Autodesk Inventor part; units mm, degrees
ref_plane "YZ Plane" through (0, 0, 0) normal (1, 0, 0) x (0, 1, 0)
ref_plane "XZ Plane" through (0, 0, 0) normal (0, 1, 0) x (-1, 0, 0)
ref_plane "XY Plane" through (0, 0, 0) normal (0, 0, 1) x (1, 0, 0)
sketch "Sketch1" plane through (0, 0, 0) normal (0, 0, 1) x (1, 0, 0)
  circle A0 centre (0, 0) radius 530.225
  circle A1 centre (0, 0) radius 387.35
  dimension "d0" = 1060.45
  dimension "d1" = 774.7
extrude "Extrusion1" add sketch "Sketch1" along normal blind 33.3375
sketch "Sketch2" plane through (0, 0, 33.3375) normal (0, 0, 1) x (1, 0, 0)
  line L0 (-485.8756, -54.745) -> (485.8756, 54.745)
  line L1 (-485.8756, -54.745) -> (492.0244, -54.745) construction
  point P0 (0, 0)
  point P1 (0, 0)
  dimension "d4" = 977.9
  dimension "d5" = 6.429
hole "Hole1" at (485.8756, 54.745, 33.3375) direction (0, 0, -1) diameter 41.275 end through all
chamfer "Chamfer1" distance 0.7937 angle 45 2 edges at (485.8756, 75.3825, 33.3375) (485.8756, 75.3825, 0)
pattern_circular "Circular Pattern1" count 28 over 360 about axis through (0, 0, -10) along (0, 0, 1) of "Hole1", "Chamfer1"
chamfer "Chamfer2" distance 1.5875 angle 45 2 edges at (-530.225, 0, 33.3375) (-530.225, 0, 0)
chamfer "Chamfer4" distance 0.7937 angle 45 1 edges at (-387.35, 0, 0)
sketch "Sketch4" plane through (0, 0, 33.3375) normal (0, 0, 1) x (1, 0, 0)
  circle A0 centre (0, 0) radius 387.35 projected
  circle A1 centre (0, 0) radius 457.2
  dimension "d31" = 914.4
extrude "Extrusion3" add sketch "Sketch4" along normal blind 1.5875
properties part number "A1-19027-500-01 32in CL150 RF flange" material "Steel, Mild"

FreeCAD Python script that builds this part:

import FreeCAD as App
import Part
import Sketcher

V = App.Vector
Q = App.Units.Quantity


def edges_at(feature, points):
    """Names of the edges that pass closest to the given points."""
    edges = feature.Shape.Edges
    near = lambda p: min(range(len(edges)), key=lambda i: edges[i].distToShape(Part.Vertex(*p))[0])
    return sorted({f"Edge{near(p) + 1}" for p in points})

doc = App.newDocument("Part")
body = doc.addObject("PartDesign::Body", "Body")

# Sketch on XY plane
sketch1 = body.newObject("Sketcher::SketchObject", "Sketch")
sketch1.AttachmentSupport = (doc.getObject("XY_Plane"), [""])
sketch1.MapMode = "FlatFace"
sketch1.addGeometry([
    Part.Circle(V(0, 0, 0), V(0, 0, 1), 530),
    Part.Circle(V(0, 0, 0), V(0, 0, 1), 387),
], False)
sketch1.addConstraint([
    Sketcher.Constraint("Coincident", 0, 3, -1, 1),
    Sketcher.Constraint("Coincident", 1, 3, -1, 1),
    Sketcher.Constraint("Diameter", 1, Q("30.5 in")),
    Sketcher.Constraint("Diameter", 0, Q("41.75 in")),
])
pad1 = body.newObject("PartDesign::Pad", "Pad")
pad1.Profile = sketch1
pad1.Length = Q("1.3125 in")

# Sketch on XY plane
sketch2 = body.newObject("Sketcher::SketchObject", "Sketch001")
sketch2.AttachmentSupport = (doc.getObject("XY_Plane"), [""])
sketch2.MapMode = "FlatFace"
sketch2.AttachmentOffset = App.Placement(V(0, 0, 1.3125 * 25.4), App.Rotation())
sketch2.addGeometry(Part.Circle(V(486, 55, 0), V(0, 0, 1), 21), False)
sketch2.addConstraint([
    Sketcher.Constraint("Diameter", 0, Q("1.625 in")),
    Sketcher.Constraint("DistanceX", -1, 1, 0, 3, 485.8756),
    Sketcher.Constraint("DistanceY", -1, 1, 0, 3, 54.745),
])
doc.recompute()
hole = body.newObject("PartDesign::Hole", "Hole")
hole.Profile = sketch2
hole.ThreadType = "None"
hole.Diameter = Q("1.625 in")
hole.DepthType = "ThroughAll"
doc.recompute()

chamfer = body.newObject("PartDesign::Chamfer", "Chamfer")
chamfer.Base = (hole, edges_at(hole, [(485.876, 75.382, 33.337), (485.876, 75.382, 0)]))
chamfer.Size = Q("0.031248 in")
doc.recompute()

polarpattern = body.newObject("PartDesign::PolarPattern", "PolarPattern")
polarpattern.Originals = [hole, chamfer]
polarpattern.Axis = (doc.getObject("Z_Axis"), [""])
polarpattern.Angle = 360
polarpattern.Occurrences = 28
body.Tip = polarpattern
doc.recompute()

chamfer2 = body.newObject("PartDesign::Chamfer", "Chamfer001")
chamfer2.Base = (polarpattern, edges_at(polarpattern, [(-530.225, 0, 33.337), (-530.225, 0, 0)]))
chamfer2.Size = Q("0.0625 in")
doc.recompute()

chamfer3 = body.newObject("PartDesign::Chamfer", "Chamfer002")
chamfer3.Base = (chamfer2, edges_at(chamfer2, [(-387.35, 0, 0)]))
chamfer3.Size = Q("0.031248 in")

# Sketch on XY plane
sketch3 = body.newObject("Sketcher::SketchObject", "Sketch002")
sketch3.AttachmentSupport = (doc.getObject("XY_Plane"), [""])
sketch3.MapMode = "FlatFace"
sketch3.AttachmentOffset = App.Placement(V(0, 0, 1.3125 * 25.4), App.Rotation())
sketch3.addGeometry([
    Part.Circle(V(0, 0, 0), V(0, 0, 1), 457),
    Part.Circle(V(0, 0, 0), V(0, 0, 1), 387),
], False)
sketch3.addConstraint([
    Sketcher.Constraint("Coincident", 0, 3, -1, 1),
    Sketcher.Constraint("Coincident", 1, 3, -1, 1),
    Sketcher.Constraint("Diameter", 0, Q("36 in")),
    Sketcher.Constraint("Diameter", 1, Q("30.5 in")),
])
pad2 = body.newObject("PartDesign::Pad", "Pad001")
pad2.Profile = sketch3
pad2.Length = Q("0.0625 in")

doc.recompute()
